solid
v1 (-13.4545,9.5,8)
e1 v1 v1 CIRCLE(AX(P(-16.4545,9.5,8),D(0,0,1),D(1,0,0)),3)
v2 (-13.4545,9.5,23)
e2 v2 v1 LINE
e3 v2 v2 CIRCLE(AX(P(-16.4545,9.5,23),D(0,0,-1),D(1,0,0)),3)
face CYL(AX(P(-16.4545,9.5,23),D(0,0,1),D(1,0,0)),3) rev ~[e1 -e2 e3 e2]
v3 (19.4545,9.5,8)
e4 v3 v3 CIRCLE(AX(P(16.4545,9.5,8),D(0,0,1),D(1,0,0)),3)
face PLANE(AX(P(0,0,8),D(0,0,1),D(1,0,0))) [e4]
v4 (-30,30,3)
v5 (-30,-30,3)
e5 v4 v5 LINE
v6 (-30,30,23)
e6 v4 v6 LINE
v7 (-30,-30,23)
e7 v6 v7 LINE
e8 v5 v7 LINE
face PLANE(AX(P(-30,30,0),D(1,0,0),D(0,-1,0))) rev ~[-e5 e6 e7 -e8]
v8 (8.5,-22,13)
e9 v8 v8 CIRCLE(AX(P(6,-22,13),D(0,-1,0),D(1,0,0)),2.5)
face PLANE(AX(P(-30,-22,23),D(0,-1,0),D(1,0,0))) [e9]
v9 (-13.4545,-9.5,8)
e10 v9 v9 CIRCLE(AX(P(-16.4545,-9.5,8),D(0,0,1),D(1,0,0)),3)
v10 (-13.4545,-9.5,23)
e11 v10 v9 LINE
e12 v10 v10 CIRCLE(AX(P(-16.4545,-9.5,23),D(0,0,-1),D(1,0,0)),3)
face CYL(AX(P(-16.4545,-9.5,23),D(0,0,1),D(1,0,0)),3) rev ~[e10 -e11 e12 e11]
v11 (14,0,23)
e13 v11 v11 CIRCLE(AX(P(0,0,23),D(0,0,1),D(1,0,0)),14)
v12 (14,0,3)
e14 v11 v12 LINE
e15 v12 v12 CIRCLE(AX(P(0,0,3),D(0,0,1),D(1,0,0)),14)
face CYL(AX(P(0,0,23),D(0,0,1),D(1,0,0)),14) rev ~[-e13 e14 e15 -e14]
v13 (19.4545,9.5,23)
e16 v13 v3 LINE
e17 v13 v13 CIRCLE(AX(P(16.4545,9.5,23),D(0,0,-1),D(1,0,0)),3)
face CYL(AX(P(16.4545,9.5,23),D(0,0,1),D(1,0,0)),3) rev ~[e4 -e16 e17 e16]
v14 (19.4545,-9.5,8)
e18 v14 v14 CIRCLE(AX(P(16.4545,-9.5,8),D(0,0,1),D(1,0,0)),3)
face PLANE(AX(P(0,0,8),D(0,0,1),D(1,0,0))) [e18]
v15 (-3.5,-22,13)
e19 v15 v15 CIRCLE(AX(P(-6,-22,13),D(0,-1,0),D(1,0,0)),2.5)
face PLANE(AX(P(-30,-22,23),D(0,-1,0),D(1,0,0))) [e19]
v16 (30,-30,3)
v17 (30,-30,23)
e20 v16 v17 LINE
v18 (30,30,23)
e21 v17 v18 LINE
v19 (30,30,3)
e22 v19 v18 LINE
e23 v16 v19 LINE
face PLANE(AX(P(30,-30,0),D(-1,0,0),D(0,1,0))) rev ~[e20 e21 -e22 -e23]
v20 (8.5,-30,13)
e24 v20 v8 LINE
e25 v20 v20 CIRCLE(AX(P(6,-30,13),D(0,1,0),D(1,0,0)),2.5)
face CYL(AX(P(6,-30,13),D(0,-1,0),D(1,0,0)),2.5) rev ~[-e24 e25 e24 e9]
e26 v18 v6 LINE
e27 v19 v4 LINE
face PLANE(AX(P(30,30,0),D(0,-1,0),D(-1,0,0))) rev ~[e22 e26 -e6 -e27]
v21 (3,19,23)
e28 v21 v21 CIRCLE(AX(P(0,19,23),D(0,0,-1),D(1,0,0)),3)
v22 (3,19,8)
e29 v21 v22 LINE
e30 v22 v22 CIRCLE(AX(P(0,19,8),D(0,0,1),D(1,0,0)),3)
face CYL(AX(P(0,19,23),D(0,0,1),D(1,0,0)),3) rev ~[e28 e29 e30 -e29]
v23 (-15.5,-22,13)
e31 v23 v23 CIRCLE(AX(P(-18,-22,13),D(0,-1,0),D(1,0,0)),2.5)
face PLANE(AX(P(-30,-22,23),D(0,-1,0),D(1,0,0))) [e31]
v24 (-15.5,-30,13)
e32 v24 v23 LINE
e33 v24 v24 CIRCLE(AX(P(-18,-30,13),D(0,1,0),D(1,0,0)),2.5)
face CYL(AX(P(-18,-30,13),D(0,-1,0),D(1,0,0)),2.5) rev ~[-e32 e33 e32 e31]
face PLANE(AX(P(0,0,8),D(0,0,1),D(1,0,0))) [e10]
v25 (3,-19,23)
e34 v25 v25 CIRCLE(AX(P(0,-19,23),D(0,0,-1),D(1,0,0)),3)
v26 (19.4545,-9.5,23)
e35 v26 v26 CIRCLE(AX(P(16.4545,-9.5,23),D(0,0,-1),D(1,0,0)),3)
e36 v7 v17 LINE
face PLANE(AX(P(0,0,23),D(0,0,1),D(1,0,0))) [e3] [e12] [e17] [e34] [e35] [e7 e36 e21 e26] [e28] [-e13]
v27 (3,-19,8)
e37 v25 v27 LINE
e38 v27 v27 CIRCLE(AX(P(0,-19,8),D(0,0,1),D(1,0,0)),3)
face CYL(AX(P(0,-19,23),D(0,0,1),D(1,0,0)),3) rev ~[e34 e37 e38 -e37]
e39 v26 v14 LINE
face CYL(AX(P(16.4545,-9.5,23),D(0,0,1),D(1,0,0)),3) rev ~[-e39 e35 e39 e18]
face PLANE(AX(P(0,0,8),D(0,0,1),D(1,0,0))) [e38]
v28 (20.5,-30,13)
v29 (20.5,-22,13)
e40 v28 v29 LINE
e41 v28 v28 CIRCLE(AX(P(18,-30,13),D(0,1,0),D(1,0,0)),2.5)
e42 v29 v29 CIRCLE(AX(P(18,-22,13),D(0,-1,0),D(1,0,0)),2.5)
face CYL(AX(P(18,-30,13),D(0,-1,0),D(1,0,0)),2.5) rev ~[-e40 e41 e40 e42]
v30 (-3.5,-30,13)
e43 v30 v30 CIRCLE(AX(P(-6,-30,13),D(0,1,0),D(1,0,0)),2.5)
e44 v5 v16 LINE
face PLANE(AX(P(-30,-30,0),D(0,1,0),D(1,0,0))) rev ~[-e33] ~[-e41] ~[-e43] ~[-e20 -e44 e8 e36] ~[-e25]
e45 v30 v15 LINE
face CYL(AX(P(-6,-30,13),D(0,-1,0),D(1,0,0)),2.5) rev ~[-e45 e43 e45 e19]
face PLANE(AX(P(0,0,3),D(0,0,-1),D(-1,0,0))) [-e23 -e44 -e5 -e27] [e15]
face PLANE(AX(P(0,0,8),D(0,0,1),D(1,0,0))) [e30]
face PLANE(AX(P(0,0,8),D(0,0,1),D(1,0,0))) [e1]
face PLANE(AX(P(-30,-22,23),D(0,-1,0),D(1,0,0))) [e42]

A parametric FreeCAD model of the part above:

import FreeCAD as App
import Part
import Sketcher
Q = App.Units.Quantity

doc = App.newDocument("Part")
body = doc.addObject("PartDesign::Body", "Body")

# Sketch on XY plane
sketch1 = body.newObject("Sketcher::SketchObject", "Sketch")
sketch1.AttachmentSupport = (doc.getObject("XY_Plane"), [""])
sketch1.MapMode = "FlatFace"
sketch1.addGeometry([
    Part.LineSegment(App.Vector(-30, 30, 0), App.Vector(-30, -30, 0)),
    Part.LineSegment(App.Vector(-30, -30, 0), App.Vector(30, -30, 0)),
    Part.LineSegment(App.Vector(30, -30, 0), App.Vector(30, 30, 0)),
    Part.LineSegment(App.Vector(30, 30, 0), App.Vector(-30, 30, 0)),
], False)
sketch1.addConstraint([
    Sketcher.Constraint("Coincident", 0, 2, 1, 1),
    Sketcher.Constraint("Coincident", 1, 2, 2, 1),
    Sketcher.Constraint("Coincident", 2, 2, 3, 1),
    Sketcher.Constraint("Coincident", 3, 2, 0, 1),
    Sketcher.Constraint("Vertical", 0),
    Sketcher.Constraint("Horizontal", 1),
    Sketcher.Constraint("Vertical", 2),
    Sketcher.Constraint("Horizontal", 3),
    Sketcher.Constraint("Symmetric", 0, 2, 2, 2, -1, 1),
    Sketcher.Constraint("Equal", 3, 0),
    Sketcher.Constraint("DistanceX", 1, 1, 1, 2, Q("60 mm")),
])
pad1 = body.newObject("PartDesign::Pad", "Pad")
pad1.Profile = sketch1
pad1.Length = 35

# Sketch on XY plane
sketch2 = body.newObject("Sketcher::SketchObject", "Sketch001")
sketch2.AttachmentSupport = (doc.getObject("XY_Plane"), [""])
sketch2.MapMode = "FlatFace"
sketch2.AttachmentOffset = App.Placement(App.Vector(0, 0, 35), App.Rotation())
sketch2.addGeometry(Part.Circle(App.Vector(0, 0, 0), App.Vector(0, 0, 1), 25), False)
sketch2.addConstraint([
    Sketcher.Constraint("Coincident", 0, 3, -1, 1),
    Sketcher.Constraint("Diameter", 0, Q("50 mm")),
])
pocket1 = body.newObject("PartDesign::Pocket", "Pocket")
pocket1.Profile = sketch2
pocket1.Length = 12

# Sketch on XY plane
sketch3 = body.newObject("Sketcher::SketchObject", "Sketch002")
sketch3.AttachmentSupport = (doc.getObject("XY_Plane"), [""])
sketch3.MapMode = "FlatFace"
sketch3.AttachmentOffset = App.Placement(App.Vector(0, 0, 23), App.Rotation())
sketch3.addGeometry(Part.Circle(App.Vector(0, 0, 0), App.Vector(0, 0, 1), 14), False)
sketch3.addConstraint([
    Sketcher.Constraint("Coincident", 0, 3, -1, 1),
    Sketcher.Constraint("Diameter", 0, Q("28 mm")),
])
pocket2 = body.newObject("PartDesign::Pocket", "Pocket001")
pocket2.Profile = sketch3
pocket2.Type = "UpToFirst"

# Sketch on XY plane
sketch4 = body.newObject("Sketcher::SketchObject", "Sketch003")
sketch4.AttachmentSupport = (doc.getObject("XY_Plane"), [""])
sketch4.MapMode = "FlatFace"
sketch4.AttachmentOffset = App.Placement(App.Vector(0, 0, 35), App.Rotation())
sketch4.addGeometry([
    Part.LineSegment(App.Vector(-30, 30, 0), App.Vector(-30, -30, 0)),  # 0
    Part.LineSegment(App.Vector(-30, -30, 0), App.Vector(30, -30, 0)),  # 1
    Part.LineSegment(App.Vector(30, -30, 0), App.Vector(30, 30, 0)),  # 2
    Part.LineSegment(App.Vector(30, 30, 0), App.Vector(-30, 30, 0)),  # 3
    Part.Circle(App.Vector(0, 0, 0), App.Vector(0, 0, 1), 25),  # 4
], False)
sketch4.addConstraint([
    Sketcher.Constraint("Coincident", 0, 2, 1, 1),
    Sketcher.Constraint("Coincident", 1, 2, 2, 1),
    Sketcher.Constraint("Coincident", 2, 2, 3, 1),
    Sketcher.Constraint("Coincident", 3, 2, 0, 1),
    Sketcher.Constraint("Vertical", 0),
    Sketcher.Constraint("Horizontal", 1),
    Sketcher.Constraint("Vertical", 2),
    Sketcher.Constraint("Horizontal", 3),
    Sketcher.Constraint("Coincident", 4, 3, -1, 1),
    Sketcher.Constraint("Symmetric", 0, 2, 2, 2, -1, 1),
    Sketcher.Constraint("Equal", 3, 0),
    Sketcher.Constraint("Diameter", 4, Q("50 mm")),
    Sketcher.Constraint("DistanceX", 1, 1, 1, 2, Q("60 mm")),
])
pocket3 = body.newObject("PartDesign::Pocket", "Pocket002")
pocket3.Profile = sketch4
pocket3.Length = 12

# Sketch on XY plane
sketch5 = body.newObject("Sketcher::SketchObject", "Sketch004")
sketch5.AttachmentSupport = (doc.getObject("XY_Plane"), [""])
sketch5.MapMode = "FlatFace"
sketch5.AttachmentOffset = App.Placement(App.Vector(0, 0, 23), App.Rotation())
sketch5.addGeometry([
    Part.Circle(App.Vector(16.5, 9.5, 0), App.Vector(0, 0, 1), 3),  # 0
    Part.Circle(App.Vector(16.5, -9.5, 0), App.Vector(0, 0, 1), 3),  # 1
    Part.Circle(App.Vector(0, 19, 0), App.Vector(0, 0, 1), 3),  # 2
    Part.Circle(App.Vector(0, -19, 0), App.Vector(0, 0, 1), 3),  # 3
    Part.Circle(App.Vector(-16.5, 9.5, 0), App.Vector(0, 0, 1), 3),  # 4
    Part.Circle(App.Vector(-16.5, -9.5, 0), App.Vector(0, 0, 1), 3),  # 5
], False)
sketch5.addConstraint([
    Sketcher.Constraint("Equal", 0, 1),
    Sketcher.Constraint("Equal", 1, 2),
    Sketcher.Constraint("Equal", 2, 3),
    Sketcher.Constraint("Equal", 3, 4),
    Sketcher.Constraint("Equal", 4, 5),
    Sketcher.Constraint("Symmetric", 2, 3, 3, 3, -1, 1),
    Sketcher.Constraint("Symmetric", 1, 3, 4, 3, -1, 1),
    Sketcher.Constraint("Symmetric", 0, 3, 5, 3, -1, 1),
    Sketcher.Constraint("Symmetric", 0, 3, 4, 3, -2),
    Sketcher.Constraint("PointOnObject", 2, 3, -2),
    Sketcher.Constraint("Diameter", 0, Q("6 mm")),
    Sketcher.Constraint("DistanceY", 3, 3, 2, 3, Q("38 mm")),
    Sketcher.Constraint("DistanceY", 1, 3, 0, 3, Q("19 mm")),
    Sketcher.Constraint("DistanceX", 4, 3, 0, 3, Q("32.909 mm")),
])
pocket4 = body.newObject("PartDesign::Pocket", "Pocket003")
pocket4.Profile = sketch5
pocket4.Length = 15

# Sketch on XY plane
sketch6 = body.newObject("Sketcher::SketchObject", "Sketch005")
sketch6.AttachmentSupport = (doc.getObject("XY_Plane"), [""])
sketch6.MapMode = "FlatFace"
sketch6.addGeometry([
    Part.LineSegment(App.Vector(30, -30, 0), App.Vector(-30, -30, 0)),  # 0
    Part.LineSegment(App.Vector(-30, -30, 0), App.Vector(-30, 30, 0)),  # 1
    Part.LineSegment(App.Vector(-30, 30, 0), App.Vector(30, 30, 0)),  # 2
    Part.LineSegment(App.Vector(30, 30, 0), App.Vector(30, -30, 0)),  # 3
    Part.Circle(App.Vector(0, 0, 0), App.Vector(0, 0, 1), 14),  # 4
], False)
sketch6.addConstraint([
    Sketcher.Constraint("Coincident", 0, 2, 1, 1),
    Sketcher.Constraint("Coincident", 1, 2, 2, 1),
    Sketcher.Constraint("Coincident", 2, 2, 3, 1),
    Sketcher.Constraint("Coincident", 3, 2, 0, 1),
    Sketcher.Constraint("Horizontal", 0),
    Sketcher.Constraint("Vertical", 1),
    Sketcher.Constraint("Horizontal", 2),
    Sketcher.Constraint("Vertical", 3),
    Sketcher.Constraint("Coincident", 4, 3, -1, 1),
    Sketcher.Constraint("Symmetric", 0, 2, 2, 2, -1, 1),
    Sketcher.Constraint("Equal", 2, 1),
    Sketcher.Constraint("Diameter", 4, Q("28 mm")),
    Sketcher.Constraint("DistanceX", 0, 2, 0, 1, Q("60 mm")),
])
pocket5 = body.newObject("PartDesign::Pocket", "Pocket004")
pocket5.Profile = sketch6
pocket5.Length = 3
pocket5.Reversed = True

# Sketch on XZ plane
sketch7 = body.newObject("Sketcher::SketchObject", "Sketch006")
sketch7.AttachmentSupport = (doc.getObject("XZ_Plane"), [""])
sketch7.MapMode = "FlatFace"
sketch7.AttachmentOffset = App.Placement(App.Vector(0, 0, 30), App.Rotation())
sketch7.addGeometry([
    Part.Circle(App.Vector(-18, 13, 0), App.Vector(0, 0, 1), 2.5),
    Part.Circle(App.Vector(18, 13, 0), App.Vector(0, 0, 1), 2.5),
    Part.Circle(App.Vector(-6, 13, 0), App.Vector(0, 0, 1), 2.5),
    Part.Circle(App.Vector(6, 13, 0), App.Vector(0, 0, 1), 2.5),
], False)
sketch7.addConstraint([
    Sketcher.Constraint("Equal", 0, 1),
    Sketcher.Constraint("Equal", 1, 2),
    Sketcher.Constraint("Equal", 2, 3),
    Sketcher.Constraint("Symmetric", 0, 3, 1, 3, -2),
    Sketcher.Constraint("Symmetric", 2, 3, 3, 3, -2),
    Sketcher.Constraint("Horizontal", 1, 3, 2, 3),
    Sketcher.Constraint("Diameter", 0, Q("5 mm")),
    Sketcher.Constraint("DistanceX", 0, 3, 2, 3, Q("12 mm")),
    Sketcher.Constraint("DistanceX", 2, 3, 3, 3, Q("12 mm")),
    Sketcher.Constraint("DistanceY", -1, 1, 0, 3, Q("13 mm")),
])
pocket6 = body.newObject("PartDesign::Pocket", "Pocket005")
pocket6.Profile = sketch7
pocket6.Length = 8

doc.recompute()
